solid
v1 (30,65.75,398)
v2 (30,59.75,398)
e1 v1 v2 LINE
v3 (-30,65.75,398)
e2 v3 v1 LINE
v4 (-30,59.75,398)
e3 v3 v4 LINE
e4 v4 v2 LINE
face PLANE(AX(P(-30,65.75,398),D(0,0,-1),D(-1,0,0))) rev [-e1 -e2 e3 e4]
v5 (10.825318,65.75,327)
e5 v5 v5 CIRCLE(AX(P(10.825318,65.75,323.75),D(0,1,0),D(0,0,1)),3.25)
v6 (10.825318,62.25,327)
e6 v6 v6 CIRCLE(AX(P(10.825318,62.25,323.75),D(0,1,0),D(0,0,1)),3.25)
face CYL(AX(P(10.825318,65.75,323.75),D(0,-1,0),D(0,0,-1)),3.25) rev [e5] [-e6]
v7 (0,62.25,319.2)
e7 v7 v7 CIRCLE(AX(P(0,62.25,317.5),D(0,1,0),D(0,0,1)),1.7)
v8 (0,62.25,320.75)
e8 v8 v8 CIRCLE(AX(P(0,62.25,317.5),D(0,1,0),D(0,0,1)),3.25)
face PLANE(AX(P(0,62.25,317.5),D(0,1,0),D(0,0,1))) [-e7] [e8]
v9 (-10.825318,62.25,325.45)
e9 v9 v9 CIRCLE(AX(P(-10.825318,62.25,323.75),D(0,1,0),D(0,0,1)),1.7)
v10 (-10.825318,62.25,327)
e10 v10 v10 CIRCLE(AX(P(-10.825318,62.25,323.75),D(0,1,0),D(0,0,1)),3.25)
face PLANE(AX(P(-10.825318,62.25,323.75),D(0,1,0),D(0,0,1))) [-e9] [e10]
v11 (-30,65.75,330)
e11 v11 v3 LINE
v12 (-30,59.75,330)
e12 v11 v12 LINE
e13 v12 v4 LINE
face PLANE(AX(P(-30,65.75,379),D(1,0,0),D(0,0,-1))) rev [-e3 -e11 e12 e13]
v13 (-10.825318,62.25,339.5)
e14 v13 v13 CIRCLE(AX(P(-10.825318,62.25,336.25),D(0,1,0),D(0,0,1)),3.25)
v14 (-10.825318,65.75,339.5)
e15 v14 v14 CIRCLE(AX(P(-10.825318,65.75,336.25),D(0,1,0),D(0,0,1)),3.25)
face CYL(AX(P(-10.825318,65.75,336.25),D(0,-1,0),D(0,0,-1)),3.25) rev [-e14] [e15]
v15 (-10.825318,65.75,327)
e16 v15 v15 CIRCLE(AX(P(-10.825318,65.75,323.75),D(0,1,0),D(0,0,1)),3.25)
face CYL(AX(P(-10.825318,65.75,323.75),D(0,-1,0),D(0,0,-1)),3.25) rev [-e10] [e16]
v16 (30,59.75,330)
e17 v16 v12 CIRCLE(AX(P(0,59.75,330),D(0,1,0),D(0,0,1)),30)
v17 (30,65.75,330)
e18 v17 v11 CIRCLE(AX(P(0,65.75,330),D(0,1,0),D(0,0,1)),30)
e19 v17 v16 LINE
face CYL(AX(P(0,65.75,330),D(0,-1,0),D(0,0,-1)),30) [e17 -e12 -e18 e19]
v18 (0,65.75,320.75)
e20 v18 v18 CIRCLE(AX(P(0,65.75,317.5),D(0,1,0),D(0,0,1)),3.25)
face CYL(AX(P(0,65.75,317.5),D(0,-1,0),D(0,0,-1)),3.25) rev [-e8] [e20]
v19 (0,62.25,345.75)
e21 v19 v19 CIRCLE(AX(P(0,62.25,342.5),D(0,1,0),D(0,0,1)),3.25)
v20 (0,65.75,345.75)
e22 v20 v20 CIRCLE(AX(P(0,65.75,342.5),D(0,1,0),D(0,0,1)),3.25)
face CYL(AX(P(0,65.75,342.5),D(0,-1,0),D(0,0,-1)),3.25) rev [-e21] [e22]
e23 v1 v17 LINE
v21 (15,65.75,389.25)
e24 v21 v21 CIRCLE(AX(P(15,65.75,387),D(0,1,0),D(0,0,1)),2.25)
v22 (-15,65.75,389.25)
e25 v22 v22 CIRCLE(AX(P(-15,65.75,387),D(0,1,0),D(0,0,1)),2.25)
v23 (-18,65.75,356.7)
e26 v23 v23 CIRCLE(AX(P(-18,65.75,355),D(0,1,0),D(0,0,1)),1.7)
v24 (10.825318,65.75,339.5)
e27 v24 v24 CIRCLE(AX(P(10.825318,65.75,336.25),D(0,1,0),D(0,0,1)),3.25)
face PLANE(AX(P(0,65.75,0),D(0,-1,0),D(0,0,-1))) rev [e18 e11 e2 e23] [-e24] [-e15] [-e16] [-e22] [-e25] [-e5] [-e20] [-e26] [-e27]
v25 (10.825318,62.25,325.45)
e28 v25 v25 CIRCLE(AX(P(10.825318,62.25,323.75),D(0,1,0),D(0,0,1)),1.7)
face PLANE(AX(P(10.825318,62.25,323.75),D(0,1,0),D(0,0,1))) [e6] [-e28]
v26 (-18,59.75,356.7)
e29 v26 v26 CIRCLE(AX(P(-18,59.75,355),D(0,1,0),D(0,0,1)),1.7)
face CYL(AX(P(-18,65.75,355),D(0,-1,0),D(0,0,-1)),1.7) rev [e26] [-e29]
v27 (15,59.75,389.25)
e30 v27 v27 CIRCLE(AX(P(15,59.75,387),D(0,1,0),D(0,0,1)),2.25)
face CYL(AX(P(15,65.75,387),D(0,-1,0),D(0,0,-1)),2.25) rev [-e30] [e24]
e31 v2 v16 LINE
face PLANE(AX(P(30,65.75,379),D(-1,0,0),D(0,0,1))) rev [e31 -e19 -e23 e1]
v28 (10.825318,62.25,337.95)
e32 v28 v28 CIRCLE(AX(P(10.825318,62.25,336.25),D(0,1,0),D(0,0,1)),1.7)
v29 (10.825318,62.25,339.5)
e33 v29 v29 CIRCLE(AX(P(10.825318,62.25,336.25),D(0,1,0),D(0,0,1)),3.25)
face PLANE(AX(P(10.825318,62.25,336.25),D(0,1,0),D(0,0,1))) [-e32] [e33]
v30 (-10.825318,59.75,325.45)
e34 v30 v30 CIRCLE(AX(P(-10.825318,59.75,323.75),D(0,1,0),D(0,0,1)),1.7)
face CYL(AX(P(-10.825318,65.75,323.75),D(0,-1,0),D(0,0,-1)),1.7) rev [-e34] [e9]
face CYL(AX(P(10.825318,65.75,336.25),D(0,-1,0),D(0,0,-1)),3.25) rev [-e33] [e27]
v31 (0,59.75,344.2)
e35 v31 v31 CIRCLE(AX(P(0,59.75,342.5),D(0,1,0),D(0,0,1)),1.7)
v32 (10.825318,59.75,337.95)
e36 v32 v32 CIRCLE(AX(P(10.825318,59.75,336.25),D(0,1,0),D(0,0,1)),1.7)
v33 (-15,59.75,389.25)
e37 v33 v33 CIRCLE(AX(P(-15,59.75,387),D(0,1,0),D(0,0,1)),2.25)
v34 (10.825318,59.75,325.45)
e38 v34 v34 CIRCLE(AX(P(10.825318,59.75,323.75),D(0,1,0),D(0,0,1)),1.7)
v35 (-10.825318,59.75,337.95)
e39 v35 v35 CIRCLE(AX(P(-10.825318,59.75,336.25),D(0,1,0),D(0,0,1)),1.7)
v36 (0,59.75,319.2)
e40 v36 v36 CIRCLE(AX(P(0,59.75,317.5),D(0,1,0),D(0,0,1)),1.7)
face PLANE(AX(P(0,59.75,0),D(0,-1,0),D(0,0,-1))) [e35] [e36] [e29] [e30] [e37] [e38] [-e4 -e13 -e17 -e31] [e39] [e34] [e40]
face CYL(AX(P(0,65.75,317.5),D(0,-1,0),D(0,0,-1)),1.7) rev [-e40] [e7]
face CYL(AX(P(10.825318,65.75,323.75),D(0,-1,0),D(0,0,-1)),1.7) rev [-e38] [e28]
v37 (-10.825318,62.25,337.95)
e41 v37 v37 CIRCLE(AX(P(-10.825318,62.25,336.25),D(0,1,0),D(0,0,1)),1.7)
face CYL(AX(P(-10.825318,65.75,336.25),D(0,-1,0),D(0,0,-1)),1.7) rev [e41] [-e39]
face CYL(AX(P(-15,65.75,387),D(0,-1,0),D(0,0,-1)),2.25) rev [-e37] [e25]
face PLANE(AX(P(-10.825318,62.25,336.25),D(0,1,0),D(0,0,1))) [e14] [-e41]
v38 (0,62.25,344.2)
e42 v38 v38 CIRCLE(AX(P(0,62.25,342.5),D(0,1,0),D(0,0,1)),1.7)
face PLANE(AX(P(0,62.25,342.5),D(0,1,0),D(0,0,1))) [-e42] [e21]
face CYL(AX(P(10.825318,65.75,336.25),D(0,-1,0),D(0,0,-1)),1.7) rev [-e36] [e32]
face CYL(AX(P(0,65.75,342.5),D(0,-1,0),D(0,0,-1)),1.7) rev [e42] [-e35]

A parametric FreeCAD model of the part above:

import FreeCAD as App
import Part
import Sketcher

V = App.Vector
Q = App.Units.Quantity

doc = App.newDocument("Part")
body = doc.addObject("PartDesign::Body", "Body")

sketch1 = doc.addObject("Sketcher::SketchObject", "Sketch")
body.addObject(sketch1)
sketch1.AttachmentSupport = (doc.XZ_Plane, [""])
sketch1.MapMode = "FlatFace"
sketch1.AttachmentOffset = App.Placement(V(0, 0, -59.75), App.Rotation())
sketch1.addGeometry([
    Part.LineSegment(V(-30, 330, 0), V(-30, 379, 0)),
    Part.LineSegment(V(-30, 379, 0), V(30, 379, 0)),
    Part.LineSegment(V(30, 379, 0), V(30, 330, 0)),
    Part.LineSegment(V(30, 330, 0), V(-30, 330, 0)),
], False)
sketch1.addConstraint([
    Sketcher.Constraint("Coincident", 0, 2, 1, 1),
    Sketcher.Constraint("Coincident", 1, 2, 2, 1),
    Sketcher.Constraint("Coincident", 2, 2, 3, 1),
    Sketcher.Constraint("Coincident", 3, 2, 0, 1),
    Sketcher.Constraint("Vertical", 0),
    Sketcher.Constraint("Horizontal", 1),
    Sketcher.Constraint("Vertical", 2),
    Sketcher.Constraint("Horizontal", 3),
    Sketcher.Constraint("DistanceX", 1, 1, 1, 2, Q("60 mm")),
    Sketcher.Constraint("DistanceY", 0, 1, 0, 2, Q("49 mm")),
    Sketcher.Constraint("DistanceX", 0, 2, -1, 1, Q("30 mm")),
    Sketcher.Constraint("DistanceY", -1, 1, 0, 2, Q("379 mm")),
])
pad1 = doc.addObject("PartDesign::Pad", "Pad")
body.addObject(pad1)
pad1.Profile = sketch1
pad1.Length = 6
pad1.Reversed = True

sketch2 = doc.addObject("Sketcher::SketchObject", "Sketch001")
body.addObject(sketch2)
sketch2.AttachmentSupport = (doc.XZ_Plane, [""])
sketch2.MapMode = "FlatFace"
sketch2.AttachmentOffset = App.Placement(V(0, 0, -59.75), App.Rotation())
sketch2.addGeometry(Part.Circle(V(0, 330, 0), V(0, 0, 1), 30), False)
sketch2.addConstraint([
    Sketcher.Constraint("PointOnObject", 0, 3, -2),
    Sketcher.Constraint("Diameter", 0, Q("60 mm")),
    Sketcher.Constraint("DistanceY", -1, 1, 0, 3, Q("330 mm")),
])
pad2 = doc.addObject("PartDesign::Pad", "Pad001")
body.addObject(pad2)
pad2.Profile = sketch2
pad2.Length = 6
pad2.Reversed = True

sketch3 = doc.addObject("Sketcher::SketchObject", "Sketch002")
body.addObject(sketch3)
sketch3.AttachmentSupport = (doc.XZ_Plane, [""])
sketch3.MapMode = "FlatFace"
sketch3.AttachmentOffset = App.Placement(V(0, 0, -59.75), App.Rotation())
sketch3.addGeometry([
    Part.Circle(V(10.8, 336.2, 0), V(0, 0, 1), 1.7),
    Part.Circle(V(0, 342.5, 0), V(0, 0, 1), 1.7),
    Part.Circle(V(-10.8, 336.2, 0), V(0, 0, 1), 1.7),
    Part.Circle(V(-10.8, 323.8, 0), V(0, 0, 1), 1.7),
    Part.Circle(V(0, 317.5, 0), V(0, 0, 1), 1.7),
    Part.Circle(V(10.8, 323.8, 0), V(0, 0, 1), 1.7),
], False)
sketch3.addConstraint([
    Sketcher.Constraint("Equal", 0, 1),
    Sketcher.Constraint("Equal", 1, 2),
    Sketcher.Constraint("Equal", 2, 3),
    Sketcher.Constraint("Equal", 3, 4),
    Sketcher.Constraint("Equal", 4, 5),
    Sketcher.Constraint("Symmetric", 0, 3, 2, 3, -2),
    Sketcher.Constraint("Symmetric", 3, 3, 5, 3, -2),
    Sketcher.Constraint("PointOnObject", 1, 3, -2),
    Sketcher.Constraint("PointOnObject", 4, 3, -2),
    Sketcher.Constraint("Vertical", 2, 3, 3, 3),
    Sketcher.Constraint("Diameter", 0, Q("3.4 mm")),
    Sketcher.Constraint("DistanceY", 4, 3, 1, 3, Q("25 mm")),
    Sketcher.Constraint("DistanceY", -1, 1, 1, 3, Q("342.5 mm")),
    Sketcher.Constraint("DistanceY", 3, 3, 2, 3, Q("12.5 mm")),
    Sketcher.Constraint("DistanceY", -1, 1, 0, 3, Q("336.25 mm")),
    Sketcher.Constraint("DistanceX", -1, 1, 0, 3, Q("10.825318 mm")),
])
pocket1 = doc.addObject("PartDesign::Pocket", "Pocket")
body.addObject(pocket1)
pocket1.Profile = sketch3
pocket1.Length = 6

sketch4 = doc.addObject("Sketcher::SketchObject", "Sketch003")
body.addObject(sketch4)
sketch4.AttachmentSupport = (doc.XZ_Plane, [""])
sketch4.MapMode = "FlatFace"
sketch4.AttachmentOffset = App.Placement(V(0, 0, -62.25), App.Rotation())
sketch4.addGeometry([
    Part.Circle(V(10.8, 336.2, 0), V(0, 0, 1), 3.2),
    Part.Circle(V(0, 342.5, 0), V(0, 0, 1), 3.2),
    Part.Circle(V(-10.8, 336.2, 0), V(0, 0, 1), 3.2),
    Part.Circle(V(-10.8, 323.8, 0), V(0, 0, 1), 3.2),
    Part.Circle(V(0, 317.5, 0), V(0, 0, 1), 3.2),
    Part.Circle(V(10.8, 323.8, 0), V(0, 0, 1), 3.2),
], False)
sketch4.addConstraint([
    Sketcher.Constraint("Equal", 0, 1),
    Sketcher.Constraint("Equal", 1, 2),
    Sketcher.Constraint("Equal", 2, 3),
    Sketcher.Constraint("Equal", 3, 4),
    Sketcher.Constraint("Equal", 4, 5),
    Sketcher.Constraint("Symmetric", 0, 3, 2, 3, -2),
    Sketcher.Constraint("Symmetric", 3, 3, 5, 3, -2),
    Sketcher.Constraint("PointOnObject", 1, 3, -2),
    Sketcher.Constraint("PointOnObject", 4, 3, -2),
    Sketcher.Constraint("Vertical", 2, 3, 3, 3),
    Sketcher.Constraint("Diameter", 0, Q("6.5 mm")),
    Sketcher.Constraint("DistanceY", 4, 3, 1, 3, Q("25 mm")),
    Sketcher.Constraint("DistanceY", -1, 1, 1, 3, Q("342.5 mm")),
    Sketcher.Constraint("DistanceY", 3, 3, 2, 3, Q("12.5 mm")),
    Sketcher.Constraint("DistanceY", -1, 1, 0, 3, Q("336.25 mm")),
    Sketcher.Constraint("DistanceX", -1, 1, 0, 3, Q("10.825318 mm")),
])
pocket2 = doc.addObject("PartDesign::Pocket", "Pocket001")
body.addObject(pocket2)
pocket2.Profile = sketch4
pocket2.Length = 3.5

sketch5 = doc.addObject("Sketcher::SketchObject", "Sketch004")
body.addObject(sketch5)
sketch5.AttachmentSupport = (doc.XZ_Plane, [""])
sketch5.MapMode = "FlatFace"
sketch5.AttachmentOffset = App.Placement(V(0, 0, -59.75), App.Rotation())
sketch5.addGeometry([
    Part.LineSegment(V(-30, 379, 0), V(-30, 398, 0)),
    Part.LineSegment(V(-30, 398, 0), V(30, 398, 0)),
    Part.LineSegment(V(30, 398, 0), V(30, 379, 0)),
    Part.LineSegment(V(30, 379, 0), V(-30, 379, 0)),
], False)
sketch5.addConstraint([
    Sketcher.Constraint("Coincident", 0, 2, 1, 1),
    Sketcher.Constraint("Coincident", 1, 2, 2, 1),
    Sketcher.Constraint("Coincident", 2, 2, 3, 1),
    Sketcher.Constraint("Coincident", 3, 2, 0, 1),
    Sketcher.Constraint("Vertical", 0),
    Sketcher.Constraint("Horizontal", 1),
    Sketcher.Constraint("Vertical", 2),
    Sketcher.Constraint("Horizontal", 3),
    Sketcher.Constraint("DistanceX", 1, 1, 1, 2, Q("60 mm")),
    Sketcher.Constraint("DistanceY", 0, 1, 0, 2, Q("19 mm")),
    Sketcher.Constraint("DistanceX", 0, 2, -1, 1, Q("30 mm")),
    Sketcher.Constraint("DistanceY", -1, 1, 0, 2, Q("398 mm")),
])
pad3 = doc.addObject("PartDesign::Pad", "Pad002")
body.addObject(pad3)
pad3.Profile = sketch5
pad3.Length = 6
pad3.Reversed = True

sketch6 = doc.addObject("Sketcher::SketchObject", "Sketch005")
body.addObject(sketch6)
sketch6.AttachmentSupport = (doc.XZ_Plane, [""])
sketch6.MapMode = "FlatFace"
sketch6.AttachmentOffset = App.Placement(V(0, 0, -59.75), App.Rotation())
sketch6.addGeometry([
    Part.Circle(V(-15, 387, 0), V(0, 0, 1), 2.2),
    Part.Circle(V(15, 387, 0), V(0, 0, 1), 2.2),
], False)
sketch6.addConstraint([
    Sketcher.Constraint("Equal", 0, 1),
    Sketcher.Constraint("Symmetric", 0, 3, 1, 3, -2),
    Sketcher.Constraint("Diameter", 0, Q("4.5 mm")),
    Sketcher.Constraint("DistanceX", 0, 3, -1, 1, Q("15 mm")),
    Sketcher.Constraint("DistanceY", -1, 1, 0, 3, Q("387 mm")),
])
pocket3 = doc.addObject("PartDesign::Pocket", "Pocket002")
body.addObject(pocket3)
pocket3.Profile = sketch6
pocket3.Length = 6

sketch7 = doc.addObject("Sketcher::SketchObject", "Sketch006")
body.addObject(sketch7)
sketch7.AttachmentSupport = (doc.XZ_Plane, [""])
sketch7.MapMode = "FlatFace"
sketch7.AttachmentOffset = App.Placement(V(0, 0, -59.75), App.Rotation())
sketch7.addGeometry(Part.Circle(V(-18, 355, 0), V(0, 0, 1), 1.7), False)
sketch7.addConstraint([
    Sketcher.Constraint("Diameter", 0, Q("3.4 mm")),
    Sketcher.Constraint("DistanceX", 0, 3, -1, 1, Q("18 mm")),
    Sketcher.Constraint("DistanceY", -1, 1, 0, 3, Q("355 mm")),
])
pocket4 = doc.addObject("PartDesign::Pocket", "Pocket003")
body.addObject(pocket4)
pocket4.Profile = sketch7
pocket4.Length = 6

doc.recompute()
